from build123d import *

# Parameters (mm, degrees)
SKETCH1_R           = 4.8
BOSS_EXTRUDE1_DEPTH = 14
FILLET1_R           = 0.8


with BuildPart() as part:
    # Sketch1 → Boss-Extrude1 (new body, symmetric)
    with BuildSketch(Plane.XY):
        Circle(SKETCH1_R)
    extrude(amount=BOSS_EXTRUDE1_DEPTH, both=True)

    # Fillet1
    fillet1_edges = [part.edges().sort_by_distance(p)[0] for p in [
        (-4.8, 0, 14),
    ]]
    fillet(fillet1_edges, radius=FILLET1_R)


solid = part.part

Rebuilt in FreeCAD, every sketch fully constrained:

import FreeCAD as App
import Part
import Sketcher


def edges_at(feature, points):
    """Names of the edges that pass closest to the given points."""
    edges = feature.Shape.Edges
    near = lambda p: min(range(len(edges)), key=lambda i: edges[i].distToShape(Part.Vertex(*p))[0])
    return sorted({f"Edge{near(p) + 1}" for p in points})

doc = App.newDocument("Part")
body = doc.addObject("PartDesign::Body", "Body")

sketch1 = doc.addObject("Sketcher::SketchObject", "Sketch")
body.addObject(sketch1)
sketch1.AttachmentSupport = (doc.XY_Plane, [""])
sketch1.MapMode = "FlatFace"
sketch1.addGeometry(Part.Circle(App.Vector(0, 0, 0), App.Vector(0, 0, 1), 4.8), False)
sketch1.addConstraint(Sketcher.Constraint("Coincident", 0, 3, -1, 1))
sketch1.addConstraint(Sketcher.Constraint("Diameter", 0, 9.6))
pad1 = doc.addObject("PartDesign::Pad", "Pad")
body.addObject(pad1)
pad1.Profile = sketch1
pad1.Length = 28
pad1.Midplane = True
doc.recompute()

fillet = doc.addObject("PartDesign::Fillet", "Fillet")
body.addObject(fillet)
fillet.Base = (pad1, edges_at(pad1, [(-4.8, 0, 14)]))
fillet.Radius = 0.8

doc.recompute()
